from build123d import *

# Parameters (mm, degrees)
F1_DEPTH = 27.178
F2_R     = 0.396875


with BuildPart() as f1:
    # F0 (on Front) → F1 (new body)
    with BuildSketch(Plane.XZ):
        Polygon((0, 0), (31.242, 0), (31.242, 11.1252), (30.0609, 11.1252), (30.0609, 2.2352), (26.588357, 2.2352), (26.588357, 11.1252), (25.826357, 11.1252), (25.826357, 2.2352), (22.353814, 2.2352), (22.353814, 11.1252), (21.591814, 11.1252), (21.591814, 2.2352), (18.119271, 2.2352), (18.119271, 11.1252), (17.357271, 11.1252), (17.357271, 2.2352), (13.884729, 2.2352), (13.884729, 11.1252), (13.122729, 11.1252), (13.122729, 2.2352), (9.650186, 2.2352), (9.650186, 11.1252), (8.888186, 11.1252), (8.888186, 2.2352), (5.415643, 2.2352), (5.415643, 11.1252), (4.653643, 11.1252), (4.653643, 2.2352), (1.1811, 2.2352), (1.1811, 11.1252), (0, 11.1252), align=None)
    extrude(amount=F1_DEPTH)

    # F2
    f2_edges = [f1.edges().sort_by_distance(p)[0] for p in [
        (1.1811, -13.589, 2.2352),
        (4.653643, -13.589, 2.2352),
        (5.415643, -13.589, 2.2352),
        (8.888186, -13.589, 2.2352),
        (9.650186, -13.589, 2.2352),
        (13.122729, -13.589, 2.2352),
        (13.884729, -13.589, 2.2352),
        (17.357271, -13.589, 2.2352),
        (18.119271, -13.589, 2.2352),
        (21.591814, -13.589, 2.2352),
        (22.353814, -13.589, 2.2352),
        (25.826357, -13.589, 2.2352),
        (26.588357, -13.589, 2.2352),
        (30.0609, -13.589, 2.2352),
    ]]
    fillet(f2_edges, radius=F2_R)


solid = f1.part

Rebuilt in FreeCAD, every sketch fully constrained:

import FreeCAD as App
import Part
import Sketcher

V = App.Vector
Q = App.Units.Quantity


def edges_at(feature, points):
    """Names of the edges that pass closest to the given points."""
    edges = feature.Shape.Edges
    near = lambda p: min(range(len(edges)), key=lambda i: edges[i].distToShape(Part.Vertex(*p))[0])
    return sorted({f"Edge{near(p) + 1}" for p in points})


def add_polygon(sketch, points):
    """Adds a closed chain of lines whose ends are joined by coincident constraints."""
    first, n = sketch.GeometryCount, len(points)
    for a, b in zip(points, points[1:] + points[:1]):
        sketch.addGeometry(Part.LineSegment(App.Vector(*a, 0), App.Vector(*b, 0)), False)
    for i in range(n):
        sketch.addConstraint(Sketcher.Constraint("Coincident", first + i, 2, first + (i + 1) % n, 1))

doc = App.newDocument("Part")
body = doc.addObject("PartDesign::Body", "Body")

# Sketch on XZ plane
sketch1 = body.newObject("Sketcher::SketchObject", "Sketch")
sketch1.AttachmentSupport = (doc.getObject("XZ_Plane"), [""])
sketch1.MapMode = "FlatFace"
add_polygon(sketch1, [(0, 0), (31.2, 0), (31.2, 11.1), (30.1, 11.1), (30.1, 2.2), (26.6, 2.2), (26.6, 11.1), (25.8, 11.1), (25.8, 2.2), (22.4, 2.2), (22.4, 11.1), (21.6, 11.1), (21.6, 2.2), (18.1, 2.2), (18.1, 11.1), (17.4, 11.1), (17.4, 2.2), (13.9, 2.2), (13.9, 11.1), (13.1, 11.1), (13.1, 2.2), (9.7, 2.2), (9.7, 11.1), (8.9, 11.1), (8.9, 2.2), (5.4, 2.2), (5.4, 11.1), (4.7, 11.1), (4.7, 2.2), (1.2, 2.2), (1.2, 11.1), (0, 11.1)])  # lines 0-31
sketch1.addConstraint(Sketcher.Constraint("Horizontal", 0))
sketch1.addConstraint(Sketcher.Constraint("Vertical", 1))
sketch1.addConstraint(Sketcher.Constraint("Horizontal", 2))
sketch1.addConstraint(Sketcher.Constraint("Vertical", 3))
sketch1.addConstraint(Sketcher.Constraint("Horizontal", 4))
sketch1.addConstraint(Sketcher.Constraint("Vertical", 5))
sketch1.addConstraint(Sketcher.Constraint("Horizontal", 6))
sketch1.addConstraint(Sketcher.Constraint("Vertical", 7))
sketch1.addConstraint(Sketcher.Constraint("Horizontal", 8))
sketch1.addConstraint(Sketcher.Constraint("Vertical", 9))
sketch1.addConstraint(Sketcher.Constraint("Horizontal", 10))
sketch1.addConstraint(Sketcher.Constraint("Vertical", 11))
sketch1.addConstraint(Sketcher.Constraint("Horizontal", 12))
sketch1.addConstraint(Sketcher.Constraint("Vertical", 13))
sketch1.addConstraint(Sketcher.Constraint("Horizontal", 14))
sketch1.addConstraint(Sketcher.Constraint("Vertical", 15))
sketch1.addConstraint(Sketcher.Constraint("Horizontal", 16))
sketch1.addConstraint(Sketcher.Constraint("Vertical", 17))
sketch1.addConstraint(Sketcher.Constraint("Horizontal", 18))
sketch1.addConstraint(Sketcher.Constraint("Vertical", 19))
sketch1.addConstraint(Sketcher.Constraint("Horizontal", 20))
sketch1.addConstraint(Sketcher.Constraint("Vertical", 21))
sketch1.addConstraint(Sketcher.Constraint("Horizontal", 22))
sketch1.addConstraint(Sketcher.Constraint("Vertical", 23))
sketch1.addConstraint(Sketcher.Constraint("Horizontal", 24))
sketch1.addConstraint(Sketcher.Constraint("Vertical", 25))
sketch1.addConstraint(Sketcher.Constraint("Horizontal", 26))
sketch1.addConstraint(Sketcher.Constraint("Vertical", 27))
sketch1.addConstraint(Sketcher.Constraint("Horizontal", 28))
sketch1.addConstraint(Sketcher.Constraint("Vertical", 29))
sketch1.addConstraint(Sketcher.Constraint("Horizontal", 30))
sketch1.addConstraint(Sketcher.Constraint("Vertical", 31))
sketch1.addConstraint(Sketcher.Constraint("Coincident", 31, 2, -1, 1))
sketch1.addConstraint(Sketcher.Constraint("Horizontal", 2, 2, 5, 2))
sketch1.addConstraint(Sketcher.Constraint("Horizontal", 4, 2, 7, 2))
sketch1.addConstraint(Sketcher.Constraint("Horizontal", 6, 2, 9, 2))
sketch1.addConstraint(Sketcher.Constraint("Horizontal", 8, 2, 11, 2))
sketch1.addConstraint(Sketcher.Constraint("Horizontal", 10, 2, 13, 2))
sketch1.addConstraint(Sketcher.Constraint("Horizontal", 12, 2, 15, 2))
sketch1.addConstraint(Sketcher.Constraint("Horizontal", 14, 2, 17, 2))
sketch1.addConstraint(Sketcher.Constraint("Horizontal", 16, 2, 19, 2))
sketch1.addConstraint(Sketcher.Constraint("Horizontal", 18, 2, 21, 2))
sketch1.addConstraint(Sketcher.Constraint("Horizontal", 20, 2, 23, 2))
sketch1.addConstraint(Sketcher.Constraint("Horizontal", 22, 2, 25, 2))
sketch1.addConstraint(Sketcher.Constraint("Horizontal", 24, 2, 27, 2))
sketch1.addConstraint(Sketcher.Constraint("Horizontal", 26, 2, 29, 2))
sketch1.addConstraint(Sketcher.Constraint("Equal", 4, 8))
sketch1.addConstraint(Sketcher.Constraint("Equal", 6, 10))
sketch1.addConstraint(Sketcher.Constraint("Equal", 8, 12))
sketch1.addConstraint(Sketcher.Constraint("Equal", 10, 14))
sketch1.addConstraint(Sketcher.Constraint("Equal", 12, 16))
sketch1.addConstraint(Sketcher.Constraint("Equal", 14, 18))
sketch1.addConstraint(Sketcher.Constraint("Equal", 16, 20))
sketch1.addConstraint(Sketcher.Constraint("Equal", 18, 22))
sketch1.addConstraint(Sketcher.Constraint("Equal", 20, 24))
sketch1.addConstraint(Sketcher.Constraint("Equal", 22, 26))
sketch1.addConstraint(Sketcher.Constraint("Equal", 24, 28))
sketch1.addConstraint(Sketcher.Constraint("Equal", 2, 30))
sketch1.addConstraint(Sketcher.Constraint("DistanceX", 0, 1, 0, 2, Q("1.23 in")))
sketch1.addConstraint(Sketcher.Constraint("DistanceX", 6, 2, 6, 1, Q("0.03 in")))
sketch1.addConstraint(Sketcher.Constraint("DistanceY", 3, 2, 3, 1, Q("0.35 in")))
sketch1.addConstraint(Sketcher.Constraint("DistanceY", 1, 1, 1, 2, Q("0.438 in")))
sketch1.addConstraint(Sketcher.Constraint("DistanceX", 2, 2, 2, 1, Q("0.0465 in")))
pad1 = body.newObject("PartDesign::Pad", "Pad")
pad1.Profile = sketch1
pad1.Length = Q("1.07 in")
doc.recompute()

fillet = body.newObject("PartDesign::Fillet", "Fillet")
fillet.Base = (pad1, edges_at(pad1, [
    (1.181, -13.589, 2.235),
    (4.654, -13.589, 2.235),
    (5.416, -13.589, 2.235),
    (8.888, -13.589, 2.235),
    (9.65, -13.589, 2.235),
    (13.123, -13.589, 2.235),
    (13.885, -13.589, 2.235),
    (17.357, -13.589, 2.235),
    (18.119, -13.589, 2.235),
    (21.592, -13.589, 2.235),
    (22.354, -13.589, 2.235),
    (25.826, -13.589, 2.235),
    (26.588, -13.589, 2.235),
    (30.061, -13.589, 2.235),
]))
fillet.Radius = Q("0.015625 in")

doc.recompute()
